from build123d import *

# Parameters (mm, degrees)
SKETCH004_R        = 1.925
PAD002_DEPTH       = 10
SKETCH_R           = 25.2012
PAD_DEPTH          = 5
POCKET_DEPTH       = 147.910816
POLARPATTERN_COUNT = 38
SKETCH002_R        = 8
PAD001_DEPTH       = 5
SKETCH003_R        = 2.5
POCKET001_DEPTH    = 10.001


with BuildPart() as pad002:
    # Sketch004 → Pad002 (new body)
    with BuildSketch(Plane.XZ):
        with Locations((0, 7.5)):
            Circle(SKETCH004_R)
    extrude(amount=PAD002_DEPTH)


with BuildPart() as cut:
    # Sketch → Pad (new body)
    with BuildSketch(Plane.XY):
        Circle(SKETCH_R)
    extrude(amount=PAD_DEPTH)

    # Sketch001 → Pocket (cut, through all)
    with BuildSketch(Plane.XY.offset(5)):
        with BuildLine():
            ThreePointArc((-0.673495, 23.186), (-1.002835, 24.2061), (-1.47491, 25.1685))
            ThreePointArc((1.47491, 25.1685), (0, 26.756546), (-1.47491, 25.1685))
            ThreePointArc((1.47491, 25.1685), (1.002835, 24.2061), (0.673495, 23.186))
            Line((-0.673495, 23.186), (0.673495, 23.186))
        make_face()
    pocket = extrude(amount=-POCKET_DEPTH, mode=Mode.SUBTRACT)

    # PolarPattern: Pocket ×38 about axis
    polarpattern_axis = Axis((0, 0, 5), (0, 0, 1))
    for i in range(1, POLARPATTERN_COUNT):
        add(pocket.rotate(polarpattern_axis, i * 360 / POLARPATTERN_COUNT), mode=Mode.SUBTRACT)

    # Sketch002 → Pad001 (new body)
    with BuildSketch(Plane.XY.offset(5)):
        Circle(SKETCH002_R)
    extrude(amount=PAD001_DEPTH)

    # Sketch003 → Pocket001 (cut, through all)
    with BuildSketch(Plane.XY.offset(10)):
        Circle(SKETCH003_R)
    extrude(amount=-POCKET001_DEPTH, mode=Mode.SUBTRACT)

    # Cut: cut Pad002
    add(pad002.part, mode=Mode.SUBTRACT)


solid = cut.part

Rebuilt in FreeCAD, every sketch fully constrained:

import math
import FreeCAD as App
import Part
import Sketcher

doc = App.newDocument("Part")
body = doc.addObject("PartDesign::Body", "Body")

sketch1 = body.newObject("Sketcher::SketchObject", "Sketch")
sketch1.AttachmentSupport = (doc.getObject("XZ_Plane"), [""])
sketch1.MapMode = "FlatFace"
sketch1.addGeometry(Part.Circle(App.Vector(0, 7.5, 0), App.Vector(0, 0, 1), 1.925), False)
sketch1.addConstraint([
    Sketcher.Constraint("PointOnObject", 0, 3, -2),
    Sketcher.Constraint("Diameter", 0, 3.85),
    Sketcher.Constraint("DistanceY", -1, 1, 0, 3, 7.5),
])
pad1 = body.newObject("PartDesign::Pad", "Pad")
pad1.Profile = sketch1
pad1.Length = 10
body2 = doc.addObject("PartDesign::Body", "Body001")

sketch2 = body2.newObject("Sketcher::SketchObject", "Sketch001")
sketch2.AttachmentSupport = (doc.getObject("XY_Plane001"), [""])
sketch2.MapMode = "FlatFace"
sketch2.addGeometry(Part.Circle(App.Vector(0, 0, 0), App.Vector(0, 0, 1), 25.2012), False)
sketch2.addConstraint([
    Sketcher.Constraint("Coincident", 0, 3, -1, 1),
    Sketcher.Constraint("Diameter", 0, 50.4024),
])
pad2 = body2.newObject("PartDesign::Pad", "Pad001")
pad2.Profile = sketch2
pad2.Length = 5

sketch3 = body2.newObject("Sketcher::SketchObject", "Sketch002")
sketch3.AttachmentSupport = (doc.getObject("XY_Plane001"), [""])
sketch3.MapMode = "FlatFace"
sketch3.AttachmentOffset = App.Placement(App.Vector(0, 0, 5), App.Rotation())
sketch3.addGeometry([
    Part.ArcOfCircle(Part.Circle(App.Vector(-7.922438, 21.408887, 0), App.Vector(0, 0, 1), 7.463599), math.radians(13.774663), math.radians(30.246852)),
    Part.LineSegment(App.Vector(-0.673495, 23.186, 0), App.Vector(0.673495, 23.186, 0)),
    Part.ArcOfCircle(Part.Circle(App.Vector(7.922438, 21.408887, 0), App.Vector(0, 0, 1), 7.463599), math.radians(149.753148), math.radians(166.225337)),
    Part.ArcOfCircle(Part.Circle(App.Vector(0, 25.277606, 0), App.Vector(0, 0, 1), 1.47894), math.radians(-4.23073), math.radians(184.23073)),
], False)
sketch3.addConstraint([
    Sketcher.Constraint("Coincident", 0, 1, 1, 1),
    Sketcher.Constraint("Coincident", 1, 2, 2, 2),
    Sketcher.Constraint("Coincident", 2, 1, 3, 1),
    Sketcher.Constraint("Coincident", 3, 2, 0, 2),
    Sketcher.Constraint("Horizontal", 1),
    Sketcher.Constraint("Equal", 0, 2),
    Sketcher.Constraint("Symmetric", 0, 3, 2, 3, -2),
    Sketcher.Constraint("PointOnObject", 3, 3, -2),
    Sketcher.Constraint("Radius", 0, 7.463599),
    Sketcher.Constraint("Radius", 3, 1.47894),
    Sketcher.Constraint("DistanceY", -1, 1, 0, 1, 23.186),
    Sketcher.Constraint("DistanceX", 1, 1, 1, 2, 1.34699),
    Sketcher.Constraint("DistanceY", -1, 1, 2, 1, 25.1685),
    Sketcher.Constraint("DistanceX", 0, 3, -1, 1, 7.922438),
])
pocket1 = body2.newObject("PartDesign::Pocket", "Pocket")
pocket1.Profile = sketch3
pocket1.Type = "ThroughAll"
doc.recompute()

polarpattern = body2.newObject("PartDesign::PolarPattern", "PolarPattern")
polarpattern.Originals = [pocket1]
polarpattern.Axis = (doc.getObject("Z_Axis001"), [""])
polarpattern.Angle = 360
polarpattern.Occurrences = 38
body2.Tip = polarpattern

sketch4 = body2.newObject("Sketcher::SketchObject", "Sketch003")
sketch4.AttachmentSupport = (doc.getObject("XY_Plane001"), [""])
sketch4.MapMode = "FlatFace"
sketch4.AttachmentOffset = App.Placement(App.Vector(0, 0, 5), App.Rotation())
sketch4.addGeometry(Part.Circle(App.Vector(0, 0, 0), App.Vector(0, 0, 1), 8), False)
sketch4.addConstraint([
    Sketcher.Constraint("Coincident", 0, 3, -1, 1),
    Sketcher.Constraint("Diameter", 0, 16.0),
])
pad3 = body2.newObject("PartDesign::Pad", "Pad002")
pad3.Profile = sketch4
pad3.Length = 5

sketch5 = body2.newObject("Sketcher::SketchObject", "Sketch004")
sketch5.AttachmentSupport = (doc.getObject("XY_Plane001"), [""])
sketch5.MapMode = "FlatFace"
sketch5.AttachmentOffset = App.Placement(App.Vector(0, 0, 10), App.Rotation())
sketch5.addGeometry(Part.Circle(App.Vector(0, 0, 0), App.Vector(0, 0, 1), 2.5), False)
sketch5.addConstraint([
    Sketcher.Constraint("Coincident", 0, 3, -1, 1),
    Sketcher.Constraint("Diameter", 0, 5.0),
])
pocket2 = body2.newObject("PartDesign::Pocket", "Pocket001")
pocket2.Profile = sketch5
pocket2.Type = "ThroughAll"
doc.recompute()

boolean = body2.newObject("PartDesign::Boolean", "Boolean")
boolean.Type = "Cut"
boolean.addObjects([body])

doc.recompute()
